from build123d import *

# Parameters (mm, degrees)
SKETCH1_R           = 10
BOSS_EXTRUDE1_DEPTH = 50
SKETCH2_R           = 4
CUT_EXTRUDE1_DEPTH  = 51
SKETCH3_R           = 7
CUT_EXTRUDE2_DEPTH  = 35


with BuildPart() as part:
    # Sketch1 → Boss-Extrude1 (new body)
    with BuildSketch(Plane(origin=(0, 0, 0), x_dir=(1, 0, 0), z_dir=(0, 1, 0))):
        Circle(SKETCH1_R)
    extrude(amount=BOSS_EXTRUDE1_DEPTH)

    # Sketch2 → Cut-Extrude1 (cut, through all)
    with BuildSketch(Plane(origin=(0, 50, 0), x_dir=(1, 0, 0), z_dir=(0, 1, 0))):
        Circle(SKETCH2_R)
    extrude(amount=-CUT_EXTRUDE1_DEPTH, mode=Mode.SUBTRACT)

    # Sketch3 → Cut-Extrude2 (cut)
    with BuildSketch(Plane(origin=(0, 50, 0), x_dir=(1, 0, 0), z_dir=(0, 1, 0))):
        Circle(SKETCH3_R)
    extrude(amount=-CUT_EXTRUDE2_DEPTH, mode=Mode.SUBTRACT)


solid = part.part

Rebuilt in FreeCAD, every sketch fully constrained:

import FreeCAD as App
import Part
import Sketcher
Q = App.Units.Quantity

doc = App.newDocument("Part")
params = doc.addObject("Spreadsheet::Sheet", "Params")
for row, (alias, value) in enumerate([
    ("sketch1_diameter", "20 mm"),
    ("pad1_length", "50 mm"),
    ("sketch2_diameter", "8 mm"),
    ("sketch3_diameter", "14 mm"),
    ("pocket2_length", "35 mm"),
], start=1):
    params.set(f"A{row}", alias)
    params.set(f"B{row}", "=" + value)
    params.setAlias(f"B{row}", alias)

body = doc.addObject("PartDesign::Body", "Body")

# Sketch on XZ plane
sketch1 = body.newObject("Sketcher::SketchObject", "Sketch")
sketch1.AttachmentSupport = (doc.getObject("XZ_Plane"), [""])
sketch1.MapMode = "FlatFace"
sketch1.addGeometry(Part.Circle(App.Vector(0, 0, 0), App.Vector(0, 0, 1), 10), False)
sketch1.addConstraint(Sketcher.Constraint("Coincident", 0, 3, -1, 1))
sketch1.addConstraint(Sketcher.Constraint("Diameter", 0, Q("20 mm")))
sketch1.setExpression("Constraints[1]", "Params.sketch1_diameter")
pad1 = body.newObject("PartDesign::Pad", "Pad")
pad1.Profile = sketch1
pad1.setExpression("Length", "Params.pad1_length")
pad1.Reversed = True

# Sketch on XZ plane
sketch2 = body.newObject("Sketcher::SketchObject", "Sketch001")
sketch2.AttachmentSupport = (doc.getObject("XZ_Plane"), [""])
sketch2.MapMode = "FlatFace"
sketch2.AttachmentOffset = App.Placement(App.Vector(0, 0, -50), App.Rotation())
sketch2.addGeometry(Part.Circle(App.Vector(0, 0, 0), App.Vector(0, 0, 1), 4), False)
sketch2.addConstraint(Sketcher.Constraint("Coincident", 0, 3, -1, 1))
sketch2.addConstraint(Sketcher.Constraint("Diameter", 0, Q("8 mm")))
sketch2.setExpression("Constraints[1]", "Params.sketch2_diameter")
pocket1 = body.newObject("PartDesign::Pocket", "Pocket")
pocket1.Profile = sketch2
pocket1.Type = "ThroughAll"
pocket1.Reversed = True

# Sketch on XZ plane
sketch3 = body.newObject("Sketcher::SketchObject", "Sketch002")
sketch3.AttachmentSupport = (doc.getObject("XZ_Plane"), [""])
sketch3.MapMode = "FlatFace"
sketch3.AttachmentOffset = App.Placement(App.Vector(0, 0, -50), App.Rotation())
sketch3.addGeometry(Part.Circle(App.Vector(0, 0, 0), App.Vector(0, 0, 1), 7), False)
sketch3.addConstraint(Sketcher.Constraint("Coincident", 0, 3, -1, 1))
sketch3.addConstraint(Sketcher.Constraint("Diameter", 0, Q("14 mm")))
sketch3.setExpression("Constraints[1]", "Params.sketch3_diameter")
pocket2 = body.newObject("PartDesign::Pocket", "Pocket001")
pocket2.Profile = sketch3
pocket2.setExpression("Length", "Params.pocket2_length")
pocket2.Reversed = True

doc.recompute()
